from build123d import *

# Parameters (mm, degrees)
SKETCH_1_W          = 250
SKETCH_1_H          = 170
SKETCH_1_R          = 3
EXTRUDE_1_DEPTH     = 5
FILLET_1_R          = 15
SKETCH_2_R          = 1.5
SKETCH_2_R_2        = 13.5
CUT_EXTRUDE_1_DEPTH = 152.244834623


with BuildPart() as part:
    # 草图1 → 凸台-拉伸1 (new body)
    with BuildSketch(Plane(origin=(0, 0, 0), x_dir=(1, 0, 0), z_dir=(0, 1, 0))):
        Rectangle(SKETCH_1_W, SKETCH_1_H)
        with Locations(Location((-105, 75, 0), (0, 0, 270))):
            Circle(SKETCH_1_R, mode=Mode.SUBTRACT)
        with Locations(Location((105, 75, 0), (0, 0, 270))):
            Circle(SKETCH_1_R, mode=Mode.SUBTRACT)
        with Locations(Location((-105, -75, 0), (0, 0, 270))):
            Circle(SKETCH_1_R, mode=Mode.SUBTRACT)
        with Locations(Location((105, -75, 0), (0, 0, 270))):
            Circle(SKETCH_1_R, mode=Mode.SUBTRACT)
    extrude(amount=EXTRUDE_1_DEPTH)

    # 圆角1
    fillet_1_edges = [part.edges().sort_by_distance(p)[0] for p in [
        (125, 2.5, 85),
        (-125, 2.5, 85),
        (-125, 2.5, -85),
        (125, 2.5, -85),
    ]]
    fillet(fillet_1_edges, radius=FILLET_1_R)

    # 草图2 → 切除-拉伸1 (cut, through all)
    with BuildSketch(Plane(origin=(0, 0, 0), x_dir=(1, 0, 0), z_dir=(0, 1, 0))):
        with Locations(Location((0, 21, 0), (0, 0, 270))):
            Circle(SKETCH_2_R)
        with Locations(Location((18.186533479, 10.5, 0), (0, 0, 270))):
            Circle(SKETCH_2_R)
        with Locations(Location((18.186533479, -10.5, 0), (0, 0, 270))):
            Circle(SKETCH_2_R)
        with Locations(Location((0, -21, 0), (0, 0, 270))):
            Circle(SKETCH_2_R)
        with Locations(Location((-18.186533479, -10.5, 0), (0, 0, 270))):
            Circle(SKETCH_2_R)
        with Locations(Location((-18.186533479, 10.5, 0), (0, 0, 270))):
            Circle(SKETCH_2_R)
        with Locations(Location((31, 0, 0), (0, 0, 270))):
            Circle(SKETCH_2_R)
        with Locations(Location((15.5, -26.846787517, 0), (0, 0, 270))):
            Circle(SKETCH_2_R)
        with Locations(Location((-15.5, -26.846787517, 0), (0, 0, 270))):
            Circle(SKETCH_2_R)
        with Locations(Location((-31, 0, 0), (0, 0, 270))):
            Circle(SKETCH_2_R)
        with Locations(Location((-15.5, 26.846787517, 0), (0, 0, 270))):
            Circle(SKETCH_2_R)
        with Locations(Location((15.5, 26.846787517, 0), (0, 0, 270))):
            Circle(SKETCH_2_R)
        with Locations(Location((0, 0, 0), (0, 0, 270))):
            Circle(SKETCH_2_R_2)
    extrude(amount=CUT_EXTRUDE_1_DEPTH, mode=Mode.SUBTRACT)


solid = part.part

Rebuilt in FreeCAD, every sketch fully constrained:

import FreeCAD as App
import Part
import Sketcher
from FreeCAD import Vector
Q = App.Units.Quantity


def edges_at(feature, points):
    """Names of the edges that pass closest to the given points."""
    edges = feature.Shape.Edges
    near = lambda p: min(range(len(edges)), key=lambda i: edges[i].distToShape(Part.Vertex(*p))[0])
    return sorted({f"Edge{near(p) + 1}" for p in points})


def add_polygon(sketch, points):
    """Adds a closed chain of lines whose ends are joined by coincident constraints."""
    first, n = sketch.GeometryCount, len(points)
    for a, b in zip(points, points[1:] + points[:1]):
        sketch.addGeometry(Part.LineSegment(App.Vector(*a, 0), App.Vector(*b, 0)), False)
    for i in range(n):
        sketch.addConstraint(Sketcher.Constraint("Coincident", first + i, 2, first + (i + 1) % n, 1))

doc = App.newDocument("Part")
body = doc.addObject("PartDesign::Body", "Body")

sketch1 = doc.addObject("Sketcher::SketchObject", "Sketch")
body.addObject(sketch1)
sketch1.AttachmentSupport = (doc.XZ_Plane, [""])
sketch1.MapMode = "FlatFace"
add_polygon(sketch1, [(-125, -85), (-125, 85), (125, 85), (125, -85)])
sketch1.addGeometry(Part.Circle(Vector(-105, 75, 0), Vector(0, 0, 1), 3), False)
sketch1.addGeometry(Part.Circle(Vector(105, 75, 0), Vector(0, 0, 1), 3), False)
sketch1.addGeometry(Part.Circle(Vector(-105, -75, 0), Vector(0, 0, 1), 3), False)
sketch1.addGeometry(Part.Circle(Vector(105, -75, 0), Vector(0, 0, 1), 3), False)
sketch1.addConstraint([
    Sketcher.Constraint("Vertical", 0),
    Sketcher.Constraint("Horizontal", 1),
    Sketcher.Constraint("Vertical", 2),
    Sketcher.Constraint("Horizontal", 3),
    Sketcher.Constraint("Equal", 4, 5),
    Sketcher.Constraint("Equal", 5, 6),
    Sketcher.Constraint("Equal", 6, 7),
    Sketcher.Constraint("Symmetric", 5, 3, 6, 3, -1, 1),
    Sketcher.Constraint("Symmetric", 4, 3, 7, 3, -1, 1),
    Sketcher.Constraint("Symmetric", 0, 2, 2, 2, -1, 1),
    Sketcher.Constraint("Symmetric", 4, 3, 5, 3, -2),
    Sketcher.Constraint("Diameter", 4, Q("6 mm")),
    Sketcher.Constraint("DistanceX", 1, 1, 1, 2, Q("250 mm")),
    Sketcher.Constraint("DistanceY", 0, 1, 0, 2, Q("170 mm")),
    Sketcher.Constraint("DistanceX", 4, 3, -1, 1, Q("105 mm")),
    Sketcher.Constraint("DistanceY", -1, 1, 4, 3, Q("75 mm")),
])
pad1 = doc.addObject("PartDesign::Pad", "Pad")
body.addObject(pad1)
pad1.Profile = sketch1
pad1.Length = 5
pad1.Reversed = True
doc.recompute()

fillet = doc.addObject("PartDesign::Fillet", "Fillet")
body.addObject(fillet)
fillet.Base = (pad1, edges_at(pad1, [
    (125, 2.5, 85),
    (-125, 2.5, 85),
    (-125, 2.5, -85),
    (125, 2.5, -85),
]))
fillet.Radius = 15

sketch2 = doc.addObject("Sketcher::SketchObject", "Sketch001")
body.addObject(sketch2)
sketch2.AttachmentSupport = (doc.XZ_Plane, [""])
sketch2.MapMode = "FlatFace"
sketch2.addGeometry([
    Part.Circle(Vector(0, -21, 0), Vector(0, 0, 1), 1.5),
    Part.Circle(Vector(18.186533, -10.5, 0), Vector(0, 0, 1), 1.5),
    Part.Circle(Vector(18.186533, 10.5, 0), Vector(0, 0, 1), 1.5),
    Part.Circle(Vector(0, 21, 0), Vector(0, 0, 1), 1.5),
    Part.Circle(Vector(-18.186533, 10.5, 0), Vector(0, 0, 1), 1.5),
    Part.Circle(Vector(-18.186533, -10.5, 0), Vector(0, 0, 1), 1.5),
    Part.Circle(Vector(31, 0, 0), Vector(0, 0, 1), 1.5),
    Part.Circle(Vector(15.5, 26.846788, 0), Vector(0, 0, 1), 1.5),
    Part.Circle(Vector(-15.5, 26.846788, 0), Vector(0, 0, 1), 1.5),
    Part.Circle(Vector(-31, 0, 0), Vector(0, 0, 1), 1.5),
    Part.Circle(Vector(-15.5, -26.846788, 0), Vector(0, 0, 1), 1.5),
    Part.Circle(Vector(15.5, -26.846788, 0), Vector(0, 0, 1), 1.5),
    Part.Circle(Vector(0, 0, 0), Vector(0, 0, 1), 13.5),
], False)
sketch2.addConstraint([
    Sketcher.Constraint("Coincident", 12, 3, -1, 1),
    Sketcher.Constraint("Equal", 0, 1),
    Sketcher.Constraint("Equal", 1, 2),
    Sketcher.Constraint("Equal", 2, 3),
    Sketcher.Constraint("Equal", 3, 4),
    Sketcher.Constraint("Equal", 4, 5),
    Sketcher.Constraint("Equal", 5, 6),
    Sketcher.Constraint("Equal", 6, 7),
    Sketcher.Constraint("Equal", 7, 8),
    Sketcher.Constraint("Equal", 8, 9),
    Sketcher.Constraint("Equal", 9, 10),
    Sketcher.Constraint("Equal", 10, 11),
    Sketcher.Constraint("Symmetric", 0, 3, 3, 3, -1, 1),
    Sketcher.Constraint("Symmetric", 1, 3, 4, 3, -1, 1),
    Sketcher.Constraint("Symmetric", 2, 3, 5, 3, -1, 1),
    Sketcher.Constraint("Symmetric", 6, 3, 9, 3, -1, 1),
    Sketcher.Constraint("Symmetric", 7, 3, 10, 3, -1, 1),
    Sketcher.Constraint("Symmetric", 8, 3, 11, 3, -1, 1),
    Sketcher.Constraint("Symmetric", 2, 3, 4, 3, -2),
    Sketcher.Constraint("Symmetric", 7, 3, 8, 3, -2),
    Sketcher.Constraint("PointOnObject", 0, 3, -2),
    Sketcher.Constraint("PointOnObject", 6, 3, -1),
    Sketcher.Constraint("Diameter", 0, Q("3 mm")),
    Sketcher.Constraint("Diameter", 12, Q("27 mm")),
    Sketcher.Constraint("DistanceY", 0, 3, -1, 1, Q("21 mm")),
    Sketcher.Constraint("DistanceX", -1, 1, 6, 3, Q("31 mm")),
    Sketcher.Constraint("DistanceY", 1, 3, 2, 3, Q("21 mm")),
    Sketcher.Constraint("DistanceX", 8, 3, 7, 3, Q("31 mm")),
    Sketcher.Constraint("DistanceX", -1, 1, 1, 3, Q("18.186533 mm")),
    Sketcher.Constraint("DistanceY", -1, 1, 7, 3, Q("26.846788 mm")),
])
pocket1 = doc.addObject("PartDesign::Pocket", "Pocket")
body.addObject(pocket1)
pocket1.Profile = sketch2
pocket1.Type = "ThroughAll"

doc.recompute()
